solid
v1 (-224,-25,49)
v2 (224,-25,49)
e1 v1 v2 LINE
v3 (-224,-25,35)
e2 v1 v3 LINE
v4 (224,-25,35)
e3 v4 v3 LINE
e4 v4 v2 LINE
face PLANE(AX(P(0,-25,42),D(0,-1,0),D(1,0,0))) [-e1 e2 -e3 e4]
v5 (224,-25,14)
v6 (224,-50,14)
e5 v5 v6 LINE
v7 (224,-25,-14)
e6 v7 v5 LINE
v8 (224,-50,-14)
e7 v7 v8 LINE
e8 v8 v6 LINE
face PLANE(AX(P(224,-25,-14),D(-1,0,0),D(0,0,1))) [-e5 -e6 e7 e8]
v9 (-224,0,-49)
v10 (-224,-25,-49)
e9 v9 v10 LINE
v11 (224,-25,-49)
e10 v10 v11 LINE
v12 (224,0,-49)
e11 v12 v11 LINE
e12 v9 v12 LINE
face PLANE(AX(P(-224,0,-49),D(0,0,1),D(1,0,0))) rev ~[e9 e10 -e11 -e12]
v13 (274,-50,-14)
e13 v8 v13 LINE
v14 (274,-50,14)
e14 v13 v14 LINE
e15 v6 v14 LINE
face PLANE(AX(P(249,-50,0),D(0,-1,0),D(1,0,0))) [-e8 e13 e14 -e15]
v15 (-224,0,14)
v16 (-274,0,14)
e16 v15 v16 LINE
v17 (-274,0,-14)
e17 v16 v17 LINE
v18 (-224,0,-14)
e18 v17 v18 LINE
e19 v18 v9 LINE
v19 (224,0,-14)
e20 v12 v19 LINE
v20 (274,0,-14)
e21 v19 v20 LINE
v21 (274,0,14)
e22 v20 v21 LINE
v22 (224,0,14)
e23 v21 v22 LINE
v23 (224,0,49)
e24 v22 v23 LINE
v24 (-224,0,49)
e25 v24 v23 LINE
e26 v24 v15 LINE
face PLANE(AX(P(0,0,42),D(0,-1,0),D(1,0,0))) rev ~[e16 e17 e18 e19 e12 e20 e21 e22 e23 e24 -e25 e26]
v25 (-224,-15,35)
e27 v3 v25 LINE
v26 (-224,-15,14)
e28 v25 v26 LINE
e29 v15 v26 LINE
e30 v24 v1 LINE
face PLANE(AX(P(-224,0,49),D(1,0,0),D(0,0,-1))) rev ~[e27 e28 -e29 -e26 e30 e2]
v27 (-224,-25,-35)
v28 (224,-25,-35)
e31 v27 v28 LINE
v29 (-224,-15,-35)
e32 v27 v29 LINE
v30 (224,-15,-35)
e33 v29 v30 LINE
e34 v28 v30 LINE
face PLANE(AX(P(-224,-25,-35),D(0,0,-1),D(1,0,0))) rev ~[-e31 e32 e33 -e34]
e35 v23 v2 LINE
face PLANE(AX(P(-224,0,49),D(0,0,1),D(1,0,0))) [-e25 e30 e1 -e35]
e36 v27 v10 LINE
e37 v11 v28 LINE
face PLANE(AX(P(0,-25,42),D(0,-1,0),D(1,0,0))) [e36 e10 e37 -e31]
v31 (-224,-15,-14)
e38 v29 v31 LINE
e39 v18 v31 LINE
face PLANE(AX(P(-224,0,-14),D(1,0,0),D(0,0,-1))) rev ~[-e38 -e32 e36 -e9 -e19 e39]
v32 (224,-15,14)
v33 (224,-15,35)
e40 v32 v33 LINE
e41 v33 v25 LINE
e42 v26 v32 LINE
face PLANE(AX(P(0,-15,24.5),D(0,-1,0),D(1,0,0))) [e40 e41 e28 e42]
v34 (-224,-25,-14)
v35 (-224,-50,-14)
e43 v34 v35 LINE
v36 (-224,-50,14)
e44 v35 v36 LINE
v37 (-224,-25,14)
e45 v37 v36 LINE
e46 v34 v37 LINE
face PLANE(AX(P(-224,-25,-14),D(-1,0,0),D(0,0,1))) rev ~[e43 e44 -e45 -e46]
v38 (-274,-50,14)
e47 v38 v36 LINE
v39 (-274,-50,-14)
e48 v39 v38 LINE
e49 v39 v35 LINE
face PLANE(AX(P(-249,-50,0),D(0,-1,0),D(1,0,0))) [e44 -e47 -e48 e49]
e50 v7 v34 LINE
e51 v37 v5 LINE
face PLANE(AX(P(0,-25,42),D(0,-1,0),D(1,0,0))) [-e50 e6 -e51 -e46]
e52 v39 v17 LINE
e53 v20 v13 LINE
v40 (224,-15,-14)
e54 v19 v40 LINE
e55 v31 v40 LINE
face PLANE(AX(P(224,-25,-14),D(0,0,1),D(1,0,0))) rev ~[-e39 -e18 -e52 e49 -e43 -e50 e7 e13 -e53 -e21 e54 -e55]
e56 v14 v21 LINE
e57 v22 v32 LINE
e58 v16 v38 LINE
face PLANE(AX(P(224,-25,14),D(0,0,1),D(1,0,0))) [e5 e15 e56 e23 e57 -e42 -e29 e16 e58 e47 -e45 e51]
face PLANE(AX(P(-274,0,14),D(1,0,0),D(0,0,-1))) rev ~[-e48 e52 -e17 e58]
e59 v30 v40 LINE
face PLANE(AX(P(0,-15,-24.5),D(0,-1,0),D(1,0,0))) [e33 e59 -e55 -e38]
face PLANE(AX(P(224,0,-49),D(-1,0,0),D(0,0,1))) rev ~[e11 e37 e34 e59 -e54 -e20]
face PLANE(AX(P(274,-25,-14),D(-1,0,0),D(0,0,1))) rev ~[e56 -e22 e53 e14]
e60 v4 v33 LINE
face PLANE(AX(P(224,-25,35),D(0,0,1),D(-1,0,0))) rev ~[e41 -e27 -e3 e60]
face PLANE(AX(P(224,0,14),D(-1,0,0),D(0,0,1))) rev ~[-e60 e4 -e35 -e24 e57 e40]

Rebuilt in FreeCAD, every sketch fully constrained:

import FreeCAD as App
import Part
import Sketcher
from FreeCAD import Vector

doc = App.newDocument("Part")
body = doc.addObject("PartDesign::Body", "Body")

# Sketch on XZ plane
sketch1 = body.newObject("Sketcher::SketchObject", "Sketch")
sketch1.AttachmentSupport = (doc.getObject("XZ_Plane"), [""])
sketch1.MapMode = "FlatFace"
sketch1.addGeometry(Part.LineSegment(Vector(-224, 49, 0), Vector(-224, 14, 0)), False)
sketch1.addGeometry(Part.LineSegment(Vector(-224, 14, 0), Vector(-274, 14, 0)), False)
sketch1.addGeometry(Part.LineSegment(Vector(-274, 14, 0), Vector(-274, -14, 0)), False)
sketch1.addGeometry(Part.LineSegment(Vector(-274, -14, 0), Vector(-224, -14, 0)), False)
sketch1.addGeometry(Part.LineSegment(Vector(-224, -14, 0), Vector(-224, -49, 0)), False)
sketch1.addGeometry(Part.LineSegment(Vector(-224, -49, 0), Vector(224, -49, 0)), False)
sketch1.addGeometry(Part.LineSegment(Vector(224, -49, 0), Vector(224, -14, 0)), False)
sketch1.addGeometry(Part.LineSegment(Vector(224, -14, 0), Vector(274, -14, 0)), False)
sketch1.addGeometry(Part.LineSegment(Vector(274, -14, 0), Vector(274, 14, 0)), False)
sketch1.addGeometry(Part.LineSegment(Vector(274, 14, 0), Vector(224, 14, 0)), False)
sketch1.addGeometry(Part.LineSegment(Vector(224, 14, 0), Vector(224, 49, 0)), False)
sketch1.addGeometry(Part.LineSegment(Vector(224, 49, 0), Vector(-224, 49, 0)), False)
sketch1.addConstraint(Sketcher.Constraint("Coincident", 0, 2, 1, 1))
sketch1.addConstraint(Sketcher.Constraint("Coincident", 1, 2, 2, 1))
sketch1.addConstraint(Sketcher.Constraint("Coincident", 2, 2, 3, 1))
sketch1.addConstraint(Sketcher.Constraint("Coincident", 3, 2, 4, 1))
sketch1.addConstraint(Sketcher.Constraint("Coincident", 4, 2, 5, 1))
sketch1.addConstraint(Sketcher.Constraint("Coincident", 5, 2, 6, 1))
sketch1.addConstraint(Sketcher.Constraint("Coincident", 6, 2, 7, 1))
sketch1.addConstraint(Sketcher.Constraint("Coincident", 7, 2, 8, 1))
sketch1.addConstraint(Sketcher.Constraint("Coincident", 8, 2, 9, 1))
sketch1.addConstraint(Sketcher.Constraint("Coincident", 9, 2, 10, 1))
sketch1.addConstraint(Sketcher.Constraint("Coincident", 10, 2, 11, 1))
sketch1.addConstraint(Sketcher.Constraint("Coincident", 11, 2, 0, 1))
sketch1.addConstraint(Sketcher.Constraint("Vertical", 0))
sketch1.addConstraint(Sketcher.Constraint("Horizontal", 1))
sketch1.addConstraint(Sketcher.Constraint("Vertical", 2))
sketch1.addConstraint(Sketcher.Constraint("Horizontal", 3))
sketch1.addConstraint(Sketcher.Constraint("Vertical", 4))
sketch1.addConstraint(Sketcher.Constraint("Horizontal", 5))
sketch1.addConstraint(Sketcher.Constraint("Vertical", 6))
sketch1.addConstraint(Sketcher.Constraint("Horizontal", 7))
sketch1.addConstraint(Sketcher.Constraint("Vertical", 8))
sketch1.addConstraint(Sketcher.Constraint("Horizontal", 9))
sketch1.addConstraint(Sketcher.Constraint("Vertical", 10))
sketch1.addConstraint(Sketcher.Constraint("Horizontal", 11))
sketch1.addConstraint(Sketcher.Constraint("Symmetric", 0, 2, 6, 2, -1, 1))
sketch1.addConstraint(Sketcher.Constraint("Symmetric", 2, 2, 8, 2, -1, 1))
sketch1.addConstraint(Sketcher.Constraint("Symmetric", 4, 2, 10, 2, -1, 1))
sketch1.addConstraint(Sketcher.Constraint("Symmetric", 3, 2, 6, 2, -2))
sketch1.addConstraint(Sketcher.Constraint("DistanceX", 1, 2, 1, 1, 50.0))
sketch1.addConstraint(Sketcher.Constraint("DistanceX", 5, 1, 5, 2, 448.0))
sketch1.addConstraint(Sketcher.Constraint("DistanceY", 0, 2, 0, 1, 35.0))
sketch1.addConstraint(Sketcher.Constraint("DistanceY", 2, 2, 2, 1, 28.0))
pad1 = body.newObject("PartDesign::Pad", "Pad")
pad1.Profile = sketch1
pad1.Length = 25

# Sketch on XZ plane
sketch2 = body.newObject("Sketcher::SketchObject", "Sketch001")
sketch2.AttachmentSupport = (doc.getObject("XZ_Plane"), [""])
sketch2.MapMode = "FlatFace"
sketch2.AttachmentOffset = App.Placement(Vector(0, 0, 25), App.Rotation())
sketch2.addGeometry(Part.LineSegment(Vector(-224, 14, 0), Vector(224, 14, 0)), False)
sketch2.addGeometry(Part.LineSegment(Vector(224, 14, 0), Vector(224, 35, 0)), False)
sketch2.addGeometry(Part.LineSegment(Vector(224, 35, 0), Vector(-224, 35, 0)), False)
sketch2.addGeometry(Part.LineSegment(Vector(-224, 35, 0), Vector(-224, 14, 0)), False)
sketch2.addGeometry(Part.LineSegment(Vector(-224, -14, 0), Vector(-224, -35, 0)), False)
sketch2.addGeometry(Part.LineSegment(Vector(-224, -35, 0), Vector(224, -35, 0)), False)
sketch2.addGeometry(Part.LineSegment(Vector(224, -35, 0), Vector(224, -14, 0)), False)
sketch2.addGeometry(Part.LineSegment(Vector(224, -14, 0), Vector(-224, -14, 0)), False)
sketch2.addConstraint(Sketcher.Constraint("Coincident", 0, 2, 1, 1))
sketch2.addConstraint(Sketcher.Constraint("Coincident", 1, 2, 2, 1))
sketch2.addConstraint(Sketcher.Constraint("Coincident", 2, 2, 3, 1))
sketch2.addConstraint(Sketcher.Constraint("Coincident", 3, 2, 0, 1))
sketch2.addConstraint(Sketcher.Constraint("Coincident", 4, 2, 5, 1))
sketch2.addConstraint(Sketcher.Constraint("Coincident", 5, 2, 6, 1))
sketch2.addConstraint(Sketcher.Constraint("Coincident", 6, 2, 7, 1))
sketch2.addConstraint(Sketcher.Constraint("Coincident", 7, 2, 4, 1))
sketch2.addConstraint(Sketcher.Constraint("Horizontal", 0))
sketch2.addConstraint(Sketcher.Constraint("Vertical", 1))
sketch2.addConstraint(Sketcher.Constraint("Horizontal", 2))
sketch2.addConstraint(Sketcher.Constraint("Vertical", 3))
sketch2.addConstraint(Sketcher.Constraint("Vertical", 4))
sketch2.addConstraint(Sketcher.Constraint("Horizontal", 5))
sketch2.addConstraint(Sketcher.Constraint("Vertical", 6))
sketch2.addConstraint(Sketcher.Constraint("Horizontal", 7))
sketch2.addConstraint(Sketcher.Constraint("Symmetric", 1, 2, 4, 2, -1, 1))
sketch2.addConstraint(Sketcher.Constraint("Symmetric", 3, 2, 6, 2, -1, 1))
sketch2.addConstraint(Sketcher.Constraint("Vertical", 3, 2, 4, 2))
sketch2.addConstraint(Sketcher.Constraint("DistanceX", 0, 1, 0, 2, 448.0))
sketch2.addConstraint(Sketcher.Constraint("DistanceY", 1, 1, 1, 2, 21.0))
sketch2.addConstraint(Sketcher.Constraint("DistanceY", -1, 1, 0, 2, 14.0))
pocket1 = body.newObject("PartDesign::Pocket", "Pocket")
pocket1.Profile = sketch2
pocket1.Length = 10

# Sketch on XZ plane
sketch3 = body.newObject("Sketcher::SketchObject", "Sketch002")
sketch3.AttachmentSupport = (doc.getObject("XZ_Plane"), [""])
sketch3.MapMode = "FlatFace"
sketch3.AttachmentOffset = App.Placement(Vector(0, 0, 25), App.Rotation())
sketch3.addGeometry(Part.LineSegment(Vector(224, 14, 0), Vector(224, -14, 0)), False)
sketch3.addGeometry(Part.LineSegment(Vector(224, -14, 0), Vector(274, -14, 0)), False)
sketch3.addGeometry(Part.LineSegment(Vector(274, -14, 0), Vector(274, 14, 0)), False)
sketch3.addGeometry(Part.LineSegment(Vector(274, 14, 0), Vector(224, 14, 0)), False)
sketch3.addGeometry(Part.LineSegment(Vector(-274, 14, 0), Vector(-274, -14, 0)), False)
sketch3.addGeometry(Part.LineSegment(Vector(-274, -14, 0), Vector(-224, -14, 0)), False)
sketch3.addGeometry(Part.LineSegment(Vector(-224, -14, 0), Vector(-224, 14, 0)), False)
sketch3.addGeometry(Part.LineSegment(Vector(-224, 14, 0), Vector(-274, 14, 0)), False)
sketch3.addConstraint(Sketcher.Constraint("Coincident", 0, 2, 1, 1))
sketch3.addConstraint(Sketcher.Constraint("Coincident", 1, 2, 2, 1))
sketch3.addConstraint(Sketcher.Constraint("Coincident", 2, 2, 3, 1))
sketch3.addConstraint(Sketcher.Constraint("Coincident", 3, 2, 0, 1))
sketch3.addConstraint(Sketcher.Constraint("Coincident", 4, 2, 5, 1))
sketch3.addConstraint(Sketcher.Constraint("Coincident", 5, 2, 6, 1))
sketch3.addConstraint(Sketcher.Constraint("Coincident", 6, 2, 7, 1))
sketch3.addConstraint(Sketcher.Constraint("Coincident", 7, 2, 4, 1))
sketch3.addConstraint(Sketcher.Constraint("Vertical", 0))
sketch3.addConstraint(Sketcher.Constraint("Horizontal", 1))
sketch3.addConstraint(Sketcher.Constraint("Vertical", 2))
sketch3.addConstraint(Sketcher.Constraint("Horizontal", 3))
sketch3.addConstraint(Sketcher.Constraint("Vertical", 4))
sketch3.addConstraint(Sketcher.Constraint("Horizontal", 5))
sketch3.addConstraint(Sketcher.Constraint("Vertical", 6))
sketch3.addConstraint(Sketcher.Constraint("Horizontal", 7))
sketch3.addConstraint(Sketcher.Constraint("Symmetric", 2, 2, 4, 2, -1, 1))
sketch3.addConstraint(Sketcher.Constraint("Symmetric", 0, 2, 6, 2, -1, 1))
sketch3.addConstraint(Sketcher.Constraint("Horizontal", 1, 2, 4, 2))
sketch3.addConstraint(Sketcher.Constraint("DistanceX", 1, 1, 1, 2, 50.0))
sketch3.addConstraint(Sketcher.Constraint("DistanceY", 0, 2, 0, 1, 28.0))
sketch3.addConstraint(Sketcher.Constraint("DistanceX", -1, 1, 0, 2, 224.0))
pad2 = body.newObject("PartDesign::Pad", "Pad001")
pad2.Profile = sketch3
pad2.Length = 25

doc.recompute()
